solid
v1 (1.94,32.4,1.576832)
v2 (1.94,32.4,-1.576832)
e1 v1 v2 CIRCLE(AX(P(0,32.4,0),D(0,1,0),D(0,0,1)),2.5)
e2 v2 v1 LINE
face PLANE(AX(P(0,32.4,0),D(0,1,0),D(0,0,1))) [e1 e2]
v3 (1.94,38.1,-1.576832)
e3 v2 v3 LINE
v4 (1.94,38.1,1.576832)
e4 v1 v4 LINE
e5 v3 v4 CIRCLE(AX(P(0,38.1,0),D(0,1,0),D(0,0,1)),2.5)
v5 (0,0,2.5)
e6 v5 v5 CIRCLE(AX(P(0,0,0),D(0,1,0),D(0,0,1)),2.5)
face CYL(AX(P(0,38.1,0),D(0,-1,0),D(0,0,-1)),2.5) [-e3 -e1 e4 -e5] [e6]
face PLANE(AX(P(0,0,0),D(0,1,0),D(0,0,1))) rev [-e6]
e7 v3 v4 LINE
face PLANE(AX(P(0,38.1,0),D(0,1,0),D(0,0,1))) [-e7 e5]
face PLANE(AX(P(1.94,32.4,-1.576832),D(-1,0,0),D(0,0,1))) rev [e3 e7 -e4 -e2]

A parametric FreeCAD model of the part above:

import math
import FreeCAD as App
import Part
import Sketcher

V = App.Vector
Q = App.Units.Quantity

doc = App.newDocument("Part")
body = doc.addObject("PartDesign::Body", "Body")

sketch1 = body.newObject("Sketcher::SketchObject", "Sketch")
sketch1.AttachmentSupport = (doc.getObject("XZ_Plane"), [""])
sketch1.MapMode = "FlatFace"
sketch1.addGeometry(Part.Circle(V(0, 0, 0), V(0, 0, 1), 2.5), False)
sketch1.addConstraint([
    Sketcher.Constraint("Coincident", 0, 3, -1, 1),
    Sketcher.Constraint("Diameter", 0, Q("5 mm")),
])
pad1 = body.newObject("PartDesign::Pad", "Pad")
pad1.Profile = sketch1
pad1.Length = 38.1
pad1.Reversed = True

sketch2 = body.newObject("Sketcher::SketchObject", "Sketch001")
sketch2.AttachmentSupport = (doc.getObject("XZ_Plane"), [""])
sketch2.MapMode = "FlatFace"
sketch2.AttachmentOffset = App.Placement(V(0, 0, -32.4), App.Rotation())
sketch2.addGeometry([
    Part.LineSegment(V(1.94, -1.576832, 0), V(1.94, 1.576832, 0)),
    Part.ArcOfCircle(Part.Circle(V(0, 0, 0), V(0, 0, 1), 2.5), math.radians(-39.104216), math.radians(39.104216)),
], False)
sketch2.addConstraint([
    Sketcher.Constraint("Coincident", 0, 1, 1, 1),
    Sketcher.Constraint("Coincident", 1, 2, 0, 2),
    Sketcher.Constraint("Vertical", 0),
    Sketcher.Constraint("Coincident", 1, 3, -1, 1),
    Sketcher.Constraint("Radius", 1, Q("2.5 mm")),
    Sketcher.Constraint("DistanceX", -1, 1, 0, 1, Q("1.94 mm")),
])
pocket1 = body.newObject("PartDesign::Pocket", "Pocket")
pocket1.Profile = sketch2
pocket1.Length = 5.7

doc.recompute()
